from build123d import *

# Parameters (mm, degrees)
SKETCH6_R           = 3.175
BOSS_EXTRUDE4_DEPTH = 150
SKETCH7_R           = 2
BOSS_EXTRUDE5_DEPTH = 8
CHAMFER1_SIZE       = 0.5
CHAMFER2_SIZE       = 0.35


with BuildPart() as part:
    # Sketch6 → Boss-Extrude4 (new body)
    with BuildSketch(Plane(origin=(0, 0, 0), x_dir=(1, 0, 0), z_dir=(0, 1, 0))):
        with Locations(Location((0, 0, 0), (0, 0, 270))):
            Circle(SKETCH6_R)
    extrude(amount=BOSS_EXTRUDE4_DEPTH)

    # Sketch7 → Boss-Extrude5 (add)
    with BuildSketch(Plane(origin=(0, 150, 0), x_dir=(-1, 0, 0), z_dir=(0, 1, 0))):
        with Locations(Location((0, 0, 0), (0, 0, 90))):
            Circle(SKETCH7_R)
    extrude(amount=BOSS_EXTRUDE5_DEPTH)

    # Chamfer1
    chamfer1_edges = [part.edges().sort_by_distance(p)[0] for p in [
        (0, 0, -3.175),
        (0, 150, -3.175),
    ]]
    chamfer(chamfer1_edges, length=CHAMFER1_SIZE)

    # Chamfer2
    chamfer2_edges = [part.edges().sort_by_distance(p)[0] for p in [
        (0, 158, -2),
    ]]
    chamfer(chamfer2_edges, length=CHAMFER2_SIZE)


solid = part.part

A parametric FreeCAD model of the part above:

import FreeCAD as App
import Part
import Sketcher

V = App.Vector


def edges_at(feature, points):
    """Names of the edges that pass closest to the given points."""
    edges = feature.Shape.Edges
    near = lambda p: min(range(len(edges)), key=lambda i: edges[i].distToShape(Part.Vertex(*p))[0])
    return sorted({f"Edge{near(p) + 1}" for p in points})

doc = App.newDocument("Part")
body = doc.addObject("PartDesign::Body", "Body")

sketch1 = doc.addObject("Sketcher::SketchObject", "Sketch")
body.addObject(sketch1)
sketch1.AttachmentSupport = (doc.XZ_Plane, [""])
sketch1.MapMode = "FlatFace"
sketch1.addGeometry(Part.Circle(V(0, 0, 0), V(0, 0, 1), 3.2), False)
sketch1.addConstraint([
    Sketcher.Constraint("Coincident", 0, 3, -1, 1),
    Sketcher.Constraint("Diameter", 0, 6.35),
])
pad1 = doc.addObject("PartDesign::Pad", "Pad")
body.addObject(pad1)
pad1.Profile = sketch1
pad1.Length = 150
pad1.Reversed = True

sketch2 = doc.addObject("Sketcher::SketchObject", "Sketch001")
body.addObject(sketch2)
sketch2.AttachmentSupport = (doc.XZ_Plane, [""])
sketch2.MapMode = "FlatFace"
sketch2.AttachmentOffset = App.Placement(V(0, 0, -150), App.Rotation())
sketch2.addGeometry(Part.Circle(V(0, 0, 0), V(0, 0, 1), 2), False)
sketch2.addConstraint([
    Sketcher.Constraint("Coincident", 0, 3, -1, 1),
    Sketcher.Constraint("Diameter", 0, 4.0),
])
pad2 = doc.addObject("PartDesign::Pad", "Pad001")
body.addObject(pad2)
pad2.Profile = sketch2
pad2.Length = 8
pad2.Reversed = True
doc.recompute()

chamfer = doc.addObject("PartDesign::Chamfer", "Chamfer")
body.addObject(chamfer)
chamfer.Base = (pad2, edges_at(pad2, [(0, 0, -3.175), (0, 150, -3.175)]))
chamfer.Size = 0.5
doc.recompute()

chamfer2 = doc.addObject("PartDesign::Chamfer", "Chamfer001")
body.addObject(chamfer2)
chamfer2.Base = (chamfer, edges_at(chamfer, [(0, 158, -2)]))
chamfer2.Size = 0.35

doc.recompute()
